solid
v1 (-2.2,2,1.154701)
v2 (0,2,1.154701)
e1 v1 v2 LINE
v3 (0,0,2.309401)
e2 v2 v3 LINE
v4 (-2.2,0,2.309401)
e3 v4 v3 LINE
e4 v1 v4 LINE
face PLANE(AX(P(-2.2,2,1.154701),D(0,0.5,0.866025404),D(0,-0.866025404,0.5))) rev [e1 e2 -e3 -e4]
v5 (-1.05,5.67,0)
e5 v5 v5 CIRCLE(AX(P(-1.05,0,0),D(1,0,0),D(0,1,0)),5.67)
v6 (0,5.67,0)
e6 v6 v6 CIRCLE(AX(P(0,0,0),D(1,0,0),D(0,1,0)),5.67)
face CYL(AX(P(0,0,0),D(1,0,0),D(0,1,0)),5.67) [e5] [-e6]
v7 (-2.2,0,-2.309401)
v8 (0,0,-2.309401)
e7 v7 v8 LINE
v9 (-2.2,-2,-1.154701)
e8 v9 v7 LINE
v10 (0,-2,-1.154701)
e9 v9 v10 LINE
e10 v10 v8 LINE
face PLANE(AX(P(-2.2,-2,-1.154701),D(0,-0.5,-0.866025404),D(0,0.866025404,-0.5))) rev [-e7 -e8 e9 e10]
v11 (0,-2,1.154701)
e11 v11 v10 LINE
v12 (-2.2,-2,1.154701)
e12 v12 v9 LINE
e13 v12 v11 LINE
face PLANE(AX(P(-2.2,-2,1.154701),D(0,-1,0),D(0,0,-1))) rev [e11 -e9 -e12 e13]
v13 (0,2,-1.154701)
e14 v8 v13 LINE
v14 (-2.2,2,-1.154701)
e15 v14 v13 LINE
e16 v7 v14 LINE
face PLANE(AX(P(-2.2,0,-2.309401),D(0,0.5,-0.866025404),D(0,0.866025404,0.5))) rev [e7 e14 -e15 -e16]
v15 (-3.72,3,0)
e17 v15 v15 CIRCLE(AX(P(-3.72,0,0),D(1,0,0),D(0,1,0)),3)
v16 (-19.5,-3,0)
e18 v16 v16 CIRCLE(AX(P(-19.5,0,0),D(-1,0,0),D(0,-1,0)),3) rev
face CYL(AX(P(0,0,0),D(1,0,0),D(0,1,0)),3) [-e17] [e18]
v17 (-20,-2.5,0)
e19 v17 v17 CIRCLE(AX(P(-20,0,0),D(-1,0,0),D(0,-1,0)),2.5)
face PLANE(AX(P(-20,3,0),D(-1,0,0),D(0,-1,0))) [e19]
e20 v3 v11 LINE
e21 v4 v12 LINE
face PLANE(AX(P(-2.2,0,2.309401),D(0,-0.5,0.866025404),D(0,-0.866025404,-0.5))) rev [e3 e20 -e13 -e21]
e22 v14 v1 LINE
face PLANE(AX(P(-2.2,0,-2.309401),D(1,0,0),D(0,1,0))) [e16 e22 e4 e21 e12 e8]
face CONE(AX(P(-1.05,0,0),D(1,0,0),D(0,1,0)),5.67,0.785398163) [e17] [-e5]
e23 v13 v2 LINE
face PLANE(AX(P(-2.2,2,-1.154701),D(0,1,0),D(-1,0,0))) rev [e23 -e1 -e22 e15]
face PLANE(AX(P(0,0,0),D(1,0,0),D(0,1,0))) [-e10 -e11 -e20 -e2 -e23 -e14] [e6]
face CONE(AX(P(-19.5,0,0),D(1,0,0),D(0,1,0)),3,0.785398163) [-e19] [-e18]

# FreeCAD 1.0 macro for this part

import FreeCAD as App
import Part
import Sketcher
from FreeCAD import Vector
Q = App.Units.Quantity


def edges_at(feature, points):
    """Names of the edges that pass closest to the given points."""
    edges = feature.Shape.Edges
    near = lambda p: min(range(len(edges)), key=lambda i: edges[i].distToShape(Part.Vertex(*p))[0])
    return sorted({f"Edge{near(p) + 1}" for p in points})


def add_polygon(sketch, points):
    """Adds a closed chain of lines whose ends are joined by coincident constraints."""
    first, n = sketch.GeometryCount, len(points)
    for a, b in zip(points, points[1:] + points[:1]):
        sketch.addGeometry(Part.LineSegment(App.Vector(*a, 0), App.Vector(*b, 0)), False)
    for i in range(n):
        sketch.addConstraint(Sketcher.Constraint("Coincident", first + i, 2, first + (i + 1) % n, 1))

doc = App.newDocument("Part")
body = doc.addObject("PartDesign::Body", "Body")

sketch1 = body.newObject("Sketcher::SketchObject", "Sketch")
sketch1.AttachmentSupport = (doc.getObject("XY_Plane"), [""])
sketch1.MapMode = "FlatFace"
add_polygon(sketch1, [(0, 0), (0, 5.7), (-1.1, 5.7), (-3.7, 3), (-20, 3), (-20, 0)])
sketch1.addConstraint(Sketcher.Constraint("Vertical", 0))
sketch1.addConstraint(Sketcher.Constraint("Horizontal", 1))
sketch1.addConstraint(Sketcher.Constraint("Horizontal", 3))
sketch1.addConstraint(Sketcher.Constraint("Vertical", 4))
sketch1.addConstraint(Sketcher.Constraint("Horizontal", 5))
sketch1.addConstraint(Sketcher.Constraint("Coincident", 5, 2, -1, 1))
sketch1.addConstraint(Sketcher.Constraint("DistanceX", 5, 1, 5, 2, 20.0))
sketch1.addConstraint(Sketcher.Constraint("DistanceY", 4, 2, 4, 1, 3.0))
sketch1.addConstraint(Sketcher.Constraint("Angle", 2, Q("-135 deg")))
sketch1.addConstraint(Sketcher.Constraint("DistanceX", 1, 2, 1, 1, 1.05))
sketch1.addConstraint(Sketcher.Constraint("DistanceX", 3, 2, 3, 1, 16.28))
revolution = body.newObject("PartDesign::Revolution", "Revolution")
revolution.Profile = sketch1
revolution.ReferenceAxis = (sketch1, ["H_Axis"])
revolution.Angle = 360

sketch2 = body.newObject("Sketcher::SketchObject", "Sketch001")
sketch2.AttachmentSupport = (doc.getObject("YZ_Plane"), [""])
sketch2.MapMode = "FlatFace"
add_polygon(sketch2, [(0, -2.3), (2, -1.2), (2, 1.2), (0, 2.3), (-2, 1.2), (-2, -1.2)])
sketch2.addConstraint(Sketcher.Constraint("Vertical", 1))
sketch2.addConstraint(Sketcher.Constraint("Vertical", 4))
sketch2.addConstraint(Sketcher.Constraint("Symmetric", 0, 2, 3, 2, -1, 1))
sketch2.addConstraint(Sketcher.Constraint("Symmetric", 2, 2, 5, 2, -1, 1))
sketch2.addConstraint(Sketcher.Constraint("PointOnObject", 2, 2, -2))
sketch2.addConstraint(Sketcher.Constraint("Parallel", 2, 5))
sketch2.addConstraint(Sketcher.Constraint("Horizontal", 1, 2, 3, 2))
sketch2.addConstraint(Sketcher.Constraint("Angle", 0, Q("30 deg")))
sketch2.addConstraint(Sketcher.Constraint("DistanceX", -1, 1, 0, 2, 2.0))
sketch2.addConstraint(Sketcher.Constraint("DistanceY", 1, 1, 1, 2, 2.309401))
pocket1 = body.newObject("PartDesign::Pocket", "Pocket")
pocket1.Profile = sketch2
pocket1.Length = 2.2
doc.recompute()

chamfer = body.newObject("PartDesign::Chamfer", "Chamfer")
chamfer.Base = (pocket1, edges_at(pocket1, [(-20, -3, 0)]))
chamfer.Size = 0.5

doc.recompute()
